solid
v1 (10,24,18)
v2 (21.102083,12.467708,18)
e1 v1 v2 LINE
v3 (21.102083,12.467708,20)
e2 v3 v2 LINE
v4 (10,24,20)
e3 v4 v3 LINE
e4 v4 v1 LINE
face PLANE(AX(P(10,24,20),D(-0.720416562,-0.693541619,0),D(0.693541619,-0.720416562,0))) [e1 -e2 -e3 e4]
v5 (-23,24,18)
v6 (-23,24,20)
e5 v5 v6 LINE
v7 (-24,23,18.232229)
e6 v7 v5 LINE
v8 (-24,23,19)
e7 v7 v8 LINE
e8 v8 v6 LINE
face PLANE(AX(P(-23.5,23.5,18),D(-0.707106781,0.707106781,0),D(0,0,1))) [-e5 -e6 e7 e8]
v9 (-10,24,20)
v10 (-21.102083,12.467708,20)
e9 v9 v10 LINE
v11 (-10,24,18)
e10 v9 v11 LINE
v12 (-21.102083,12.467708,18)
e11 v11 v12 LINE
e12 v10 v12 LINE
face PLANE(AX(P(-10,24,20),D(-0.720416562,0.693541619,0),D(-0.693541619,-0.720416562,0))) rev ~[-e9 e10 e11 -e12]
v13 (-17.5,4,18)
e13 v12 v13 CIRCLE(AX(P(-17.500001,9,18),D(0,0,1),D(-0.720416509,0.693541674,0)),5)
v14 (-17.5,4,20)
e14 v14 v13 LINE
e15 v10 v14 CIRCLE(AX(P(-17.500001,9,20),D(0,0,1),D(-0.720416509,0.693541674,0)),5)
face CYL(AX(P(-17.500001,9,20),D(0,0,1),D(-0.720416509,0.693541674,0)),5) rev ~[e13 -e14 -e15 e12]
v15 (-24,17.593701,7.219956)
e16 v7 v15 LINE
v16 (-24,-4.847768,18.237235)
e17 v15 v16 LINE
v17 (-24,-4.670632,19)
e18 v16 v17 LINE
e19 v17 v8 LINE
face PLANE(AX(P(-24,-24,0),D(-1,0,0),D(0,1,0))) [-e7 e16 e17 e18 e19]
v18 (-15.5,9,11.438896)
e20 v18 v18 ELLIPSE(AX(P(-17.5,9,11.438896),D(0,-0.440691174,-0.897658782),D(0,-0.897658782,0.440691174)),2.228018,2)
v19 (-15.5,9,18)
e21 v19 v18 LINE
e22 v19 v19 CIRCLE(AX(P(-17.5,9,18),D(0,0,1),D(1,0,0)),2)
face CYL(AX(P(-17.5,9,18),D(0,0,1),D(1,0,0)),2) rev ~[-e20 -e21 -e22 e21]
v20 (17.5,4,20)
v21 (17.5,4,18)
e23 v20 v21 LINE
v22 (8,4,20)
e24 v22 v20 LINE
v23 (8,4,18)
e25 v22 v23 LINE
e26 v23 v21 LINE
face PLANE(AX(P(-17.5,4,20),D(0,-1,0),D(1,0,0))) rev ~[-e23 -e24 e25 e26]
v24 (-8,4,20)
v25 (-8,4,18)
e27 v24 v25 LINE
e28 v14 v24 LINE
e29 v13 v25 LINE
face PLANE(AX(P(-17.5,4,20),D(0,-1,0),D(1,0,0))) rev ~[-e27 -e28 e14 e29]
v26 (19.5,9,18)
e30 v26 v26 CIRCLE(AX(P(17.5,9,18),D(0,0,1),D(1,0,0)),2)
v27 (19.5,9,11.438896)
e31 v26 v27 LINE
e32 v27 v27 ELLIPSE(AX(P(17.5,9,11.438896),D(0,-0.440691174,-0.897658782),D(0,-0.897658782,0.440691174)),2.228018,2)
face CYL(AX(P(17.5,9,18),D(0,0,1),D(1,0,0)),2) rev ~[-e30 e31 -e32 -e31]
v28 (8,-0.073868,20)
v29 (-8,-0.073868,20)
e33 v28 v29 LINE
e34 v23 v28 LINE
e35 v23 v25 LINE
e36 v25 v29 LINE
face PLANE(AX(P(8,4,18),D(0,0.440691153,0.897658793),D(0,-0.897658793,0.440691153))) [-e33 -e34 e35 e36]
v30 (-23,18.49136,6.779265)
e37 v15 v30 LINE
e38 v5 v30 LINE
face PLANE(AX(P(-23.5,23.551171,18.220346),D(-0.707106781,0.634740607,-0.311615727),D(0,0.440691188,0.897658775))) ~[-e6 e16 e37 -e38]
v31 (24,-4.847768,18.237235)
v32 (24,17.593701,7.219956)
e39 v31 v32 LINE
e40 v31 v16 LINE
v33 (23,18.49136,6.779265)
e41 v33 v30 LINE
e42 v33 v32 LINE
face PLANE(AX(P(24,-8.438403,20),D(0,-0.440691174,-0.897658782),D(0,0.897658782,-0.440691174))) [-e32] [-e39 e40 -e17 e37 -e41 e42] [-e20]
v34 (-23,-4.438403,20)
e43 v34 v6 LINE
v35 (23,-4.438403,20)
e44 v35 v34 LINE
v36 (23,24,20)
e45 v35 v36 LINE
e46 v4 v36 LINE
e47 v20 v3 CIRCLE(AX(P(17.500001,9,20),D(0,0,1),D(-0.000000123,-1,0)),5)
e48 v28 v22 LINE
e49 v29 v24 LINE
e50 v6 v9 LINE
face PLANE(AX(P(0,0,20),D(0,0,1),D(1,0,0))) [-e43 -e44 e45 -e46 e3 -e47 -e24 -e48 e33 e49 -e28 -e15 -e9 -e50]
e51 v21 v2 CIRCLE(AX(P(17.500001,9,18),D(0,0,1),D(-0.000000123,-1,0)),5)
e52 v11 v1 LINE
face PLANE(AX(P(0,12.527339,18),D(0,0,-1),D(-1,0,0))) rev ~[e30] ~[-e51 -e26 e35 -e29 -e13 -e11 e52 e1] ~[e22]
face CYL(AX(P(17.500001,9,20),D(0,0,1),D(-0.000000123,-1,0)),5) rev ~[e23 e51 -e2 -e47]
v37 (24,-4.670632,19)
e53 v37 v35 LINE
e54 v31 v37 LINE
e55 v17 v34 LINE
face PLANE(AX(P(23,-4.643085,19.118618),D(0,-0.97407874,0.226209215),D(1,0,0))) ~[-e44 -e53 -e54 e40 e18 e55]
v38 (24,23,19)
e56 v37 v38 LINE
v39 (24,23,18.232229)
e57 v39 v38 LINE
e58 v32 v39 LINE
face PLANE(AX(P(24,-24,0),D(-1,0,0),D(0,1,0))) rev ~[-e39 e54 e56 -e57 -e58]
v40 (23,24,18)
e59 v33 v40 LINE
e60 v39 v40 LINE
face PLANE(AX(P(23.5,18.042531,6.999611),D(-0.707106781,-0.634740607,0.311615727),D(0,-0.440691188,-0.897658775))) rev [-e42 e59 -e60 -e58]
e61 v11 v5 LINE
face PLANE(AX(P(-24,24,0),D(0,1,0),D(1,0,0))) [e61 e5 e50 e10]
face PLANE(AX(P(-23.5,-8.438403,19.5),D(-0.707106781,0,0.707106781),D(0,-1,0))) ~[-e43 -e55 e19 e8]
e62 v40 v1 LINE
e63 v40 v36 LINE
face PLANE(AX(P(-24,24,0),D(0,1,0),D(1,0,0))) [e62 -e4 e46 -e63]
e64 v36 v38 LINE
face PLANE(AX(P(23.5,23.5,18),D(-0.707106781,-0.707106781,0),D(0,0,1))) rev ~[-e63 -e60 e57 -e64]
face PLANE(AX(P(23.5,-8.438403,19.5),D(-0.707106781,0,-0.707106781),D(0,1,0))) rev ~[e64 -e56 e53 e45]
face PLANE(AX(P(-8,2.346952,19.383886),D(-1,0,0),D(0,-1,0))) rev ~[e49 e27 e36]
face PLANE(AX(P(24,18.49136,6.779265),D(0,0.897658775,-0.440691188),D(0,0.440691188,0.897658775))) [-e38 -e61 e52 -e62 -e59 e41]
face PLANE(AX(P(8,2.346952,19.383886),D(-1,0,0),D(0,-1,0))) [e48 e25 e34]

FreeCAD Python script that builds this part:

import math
import FreeCAD as App
import Part
import Sketcher
Q = App.Units.Quantity


def edges_at(feature, points):
    """Names of the edges that pass closest to the given points."""
    edges = feature.Shape.Edges
    near = lambda p: min(range(len(edges)), key=lambda i: edges[i].distToShape(Part.Vertex(*p))[0])
    return sorted({f"Edge{near(p) + 1}" for p in points})

doc = App.newDocument("Part")
body = doc.addObject("PartDesign::Body", "Body")

sketch1 = body.newObject("Sketcher::SketchObject", "Sketch")
sketch1.AttachmentSupport = (doc.getObject("XY_Plane"), [""])
sketch1.MapMode = "FlatFace"
sketch1.addGeometry([
    Part.LineSegment(App.Vector(-24, 24, 0), App.Vector(-24, -24, 0)),
    Part.LineSegment(App.Vector(-24, -24, 0), App.Vector(24, -24, 0)),
    Part.LineSegment(App.Vector(24, -24, 0), App.Vector(24, 24, 0)),
    Part.LineSegment(App.Vector(24, 24, 0), App.Vector(-24, 24, 0)),
], False)
sketch1.addConstraint([
    Sketcher.Constraint("Coincident", 0, 2, 1, 1),
    Sketcher.Constraint("Coincident", 1, 2, 2, 1),
    Sketcher.Constraint("Coincident", 2, 2, 3, 1),
    Sketcher.Constraint("Coincident", 3, 2, 0, 1),
    Sketcher.Constraint("Vertical", 0),
    Sketcher.Constraint("Horizontal", 1),
    Sketcher.Constraint("Vertical", 2),
    Sketcher.Constraint("Horizontal", 3),
    Sketcher.Constraint("Symmetric", 0, 2, 2, 2, -1, 1),
    Sketcher.Constraint("Equal", 3, 0),
    Sketcher.Constraint("DistanceX", 1, 1, 1, 2, Q("48 mm")),
])
pad1 = body.newObject("PartDesign::Pad", "Pad")
pad1.Profile = sketch1
pad1.Length = 20

sketch2 = body.newObject("Sketcher::SketchObject", "Sketch001")
sketch2.AttachmentSupport = (doc.getObject("XY_Plane"), [""])
sketch2.MapMode = "FlatFace"
sketch2.AttachmentOffset = App.Placement(App.Vector(0, 0, 20), App.Rotation())
sketch2.addGeometry([
    Part.LineSegment(App.Vector(10, 24, 0), App.Vector(-10, 24, 0)),
    Part.LineSegment(App.Vector(-10, 24, 0), App.Vector(-21.1, 12.5, 0)),
    Part.ArcOfCircle(Part.Circle(App.Vector(-17.5, 9, 0), App.Vector(0, 0, 1), 5), math.radians(136), math.radians(270)),
    Part.LineSegment(App.Vector(-17.5, 4, 0), App.Vector(17.5, 4, 0)),
    Part.ArcOfCircle(Part.Circle(App.Vector(17.5, 9, 0), App.Vector(0, 0, 1), 5), math.radians(-90), math.radians(44)),
    Part.LineSegment(App.Vector(21.1, 12.5, 0), App.Vector(10, 24, 0)),
], False)
sketch2.addConstraint([
    Sketcher.Constraint("Coincident", 0, 2, 1, 1),
    Sketcher.Constraint("Tangent", 1, 2, 2, 1),
    Sketcher.Constraint("Tangent", 2, 2, 3, 1),
    Sketcher.Constraint("Tangent", 3, 2, 4, 1),
    Sketcher.Constraint("Tangent", 4, 2, 5, 1),
    Sketcher.Constraint("Coincident", 5, 2, 0, 1),
    Sketcher.Constraint("Horizontal", 0),
    Sketcher.Constraint("Horizontal", 3),
    Sketcher.Constraint("Equal", 2, 4),
    Sketcher.Constraint("Symmetric", 1, 2, 4, 2, -2),
    Sketcher.Constraint("Radius", 2, Q("5 mm")),
    Sketcher.Constraint("DistanceX", 0, 2, 0, 1, Q("20 mm")),
    Sketcher.Constraint("DistanceX", 3, 1, 3, 2, Q("35 mm")),
    Sketcher.Constraint("DistanceY", -1, 1, 2, 3, Q("9 mm")),
    Sketcher.Constraint("DistanceY", -1, 1, 0, 2, Q("24 mm")),
])
pocket1 = body.newObject("PartDesign::Pocket", "Pocket")
pocket1.Profile = sketch2
pocket1.Length = 2

sketch3 = body.newObject("Sketcher::SketchObject", "Sketch002")
sketch3.AttachmentSupport = (doc.getObject("YZ_Plane"), [""])
sketch3.MapMode = "FlatFace"
sketch3.AttachmentOffset = App.Placement(App.Vector(0, 0, 24), App.Rotation())
sketch3.addGeometry([
    Part.LineSegment(App.Vector(18, 7, 0), App.Vector(-8, 20, 0)),
    Part.LineSegment(App.Vector(-8, 20, 0), App.Vector(-24, 20, 0)),
    Part.LineSegment(App.Vector(-24, 20, 0), App.Vector(-24, 0, 0)),
    Part.LineSegment(App.Vector(-24, 0, 0), App.Vector(24, 0, 0)),
    Part.LineSegment(App.Vector(24, 0, 0), App.Vector(24, 18, 0)),
    Part.LineSegment(App.Vector(24, 18, 0), App.Vector(18, 7, 0)),
], False)
sketch3.addConstraint([
    Sketcher.Constraint("Coincident", 0, 2, 1, 1),
    Sketcher.Constraint("Coincident", 1, 2, 2, 1),
    Sketcher.Constraint("Coincident", 2, 2, 3, 1),
    Sketcher.Constraint("Coincident", 3, 2, 4, 1),
    Sketcher.Constraint("Coincident", 4, 2, 5, 1),
    Sketcher.Constraint("Coincident", 5, 2, 0, 1),
    Sketcher.Constraint("Horizontal", 1),
    Sketcher.Constraint("Vertical", 2),
    Sketcher.Constraint("Horizontal", 3),
    Sketcher.Constraint("Vertical", 4),
    Sketcher.Constraint("Symmetric", 2, 2, 3, 2, -1, 1),
    Sketcher.Constraint("Perpendicular", 0, 5),
    Sketcher.Constraint("DistanceX", 3, 1, 3, 2, Q("48 mm")),
    Sketcher.Constraint("DistanceY", 2, 2, 2, 1, Q("20 mm")),
    Sketcher.Constraint("DistanceY", 4, 1, 4, 2, Q("18 mm")),
    Sketcher.Constraint("Distance", 0, Q("29.999999 mm")),
    Sketcher.Constraint("Distance", 5, Q("12.5 mm")),
])
pocket2 = body.newObject("PartDesign::Pocket", "Pocket001")
pocket2.Profile = sketch3
pocket2.Type = "ThroughAll"

sketch4 = body.newObject("Sketcher::SketchObject", "Sketch003")
sketch4.AttachmentSupport = (doc.getObject("XY_Plane"), [""])
sketch4.MapMode = "FlatFace"
sketch4.AttachmentOffset = App.Placement(App.Vector(0, 0, 18), App.Rotation())
sketch4.addGeometry([
    Part.Circle(App.Vector(-17.5, 9, 0), App.Vector(0, 0, 1), 2),
    Part.Circle(App.Vector(17.5, 9, 0), App.Vector(0, 0, 1), 2),
], False)
sketch4.addConstraint([
    Sketcher.Constraint("Equal", 0, 1),
    Sketcher.Constraint("Symmetric", 0, 3, 1, 3, -2),
    Sketcher.Constraint("Diameter", 0, Q("4 mm")),
    Sketcher.Constraint("DistanceY", -1, 1, 0, 3, Q("9 mm")),
    Sketcher.Constraint("DistanceX", 0, 3, 1, 3, Q("35 mm")),
])
pocket3 = body.newObject("PartDesign::Pocket", "Pocket002")
pocket3.Profile = sketch4
pocket3.Type = "ThroughAll"
doc.recompute()

chamfer = body.newObject("PartDesign::Chamfer", "Chamfer")
chamfer.Base = (pocket3, edges_at(pocket3, [
    (24, 7.781, 20),
    (24, 24, 19),
    (24, 21.246, 12.39),
    (-24, 21.246, 12.39),
    (-24, 24, 19),
    (-24, 7.781, 20),
]))
chamfer.Size = 1
doc.recompute()

chamfer2 = body.newObject("PartDesign::Chamfer", "Chamfer001")
chamfer2.Base = (chamfer, edges_at(chamfer, [(0, -8.438, 20)]))
chamfer2.Size = 4

sketch5 = body.newObject("Sketcher::SketchObject", "Sketch004")
sketch5.AttachmentSupport = (doc.getObject("YZ_Plane"), [""])
sketch5.MapMode = "FlatFace"
sketch5.AttachmentOffset = App.Placement(App.Vector(0, 0, 8), App.Rotation())
sketch5.addGeometry([
    Part.LineSegment(App.Vector(-0.1, 20, 0), App.Vector(4, 18, 0)),
    Part.LineSegment(App.Vector(4, 18, 0), App.Vector(4, 20, 0)),
    Part.LineSegment(App.Vector(4, 20, 0), App.Vector(-0.1, 20, 0)),
], False)
sketch5.addConstraint([
    Sketcher.Constraint("Coincident", 0, 2, 1, 1),
    Sketcher.Constraint("Coincident", 1, 2, 2, 1),
    Sketcher.Constraint("Coincident", 2, 2, 0, 1),
    Sketcher.Constraint("Vertical", 1),
    Sketcher.Constraint("Horizontal", 2),
    Sketcher.Constraint("DistanceY", 1, 1, 1, 2, Q("2 mm")),
    Sketcher.Constraint("DistanceX", -1, 1, 0, 2, Q("4 mm")),
    Sketcher.Constraint("DistanceY", -1, 1, 0, 2, Q("18 mm")),
    Sketcher.Constraint("DistanceX", 2, 2, 2, 1, Q("4.073868 mm")),
])
pocket4 = body.newObject("PartDesign::Pocket", "Pocket003")
pocket4.Profile = sketch5
pocket4.Length = 16

doc.recompute()
